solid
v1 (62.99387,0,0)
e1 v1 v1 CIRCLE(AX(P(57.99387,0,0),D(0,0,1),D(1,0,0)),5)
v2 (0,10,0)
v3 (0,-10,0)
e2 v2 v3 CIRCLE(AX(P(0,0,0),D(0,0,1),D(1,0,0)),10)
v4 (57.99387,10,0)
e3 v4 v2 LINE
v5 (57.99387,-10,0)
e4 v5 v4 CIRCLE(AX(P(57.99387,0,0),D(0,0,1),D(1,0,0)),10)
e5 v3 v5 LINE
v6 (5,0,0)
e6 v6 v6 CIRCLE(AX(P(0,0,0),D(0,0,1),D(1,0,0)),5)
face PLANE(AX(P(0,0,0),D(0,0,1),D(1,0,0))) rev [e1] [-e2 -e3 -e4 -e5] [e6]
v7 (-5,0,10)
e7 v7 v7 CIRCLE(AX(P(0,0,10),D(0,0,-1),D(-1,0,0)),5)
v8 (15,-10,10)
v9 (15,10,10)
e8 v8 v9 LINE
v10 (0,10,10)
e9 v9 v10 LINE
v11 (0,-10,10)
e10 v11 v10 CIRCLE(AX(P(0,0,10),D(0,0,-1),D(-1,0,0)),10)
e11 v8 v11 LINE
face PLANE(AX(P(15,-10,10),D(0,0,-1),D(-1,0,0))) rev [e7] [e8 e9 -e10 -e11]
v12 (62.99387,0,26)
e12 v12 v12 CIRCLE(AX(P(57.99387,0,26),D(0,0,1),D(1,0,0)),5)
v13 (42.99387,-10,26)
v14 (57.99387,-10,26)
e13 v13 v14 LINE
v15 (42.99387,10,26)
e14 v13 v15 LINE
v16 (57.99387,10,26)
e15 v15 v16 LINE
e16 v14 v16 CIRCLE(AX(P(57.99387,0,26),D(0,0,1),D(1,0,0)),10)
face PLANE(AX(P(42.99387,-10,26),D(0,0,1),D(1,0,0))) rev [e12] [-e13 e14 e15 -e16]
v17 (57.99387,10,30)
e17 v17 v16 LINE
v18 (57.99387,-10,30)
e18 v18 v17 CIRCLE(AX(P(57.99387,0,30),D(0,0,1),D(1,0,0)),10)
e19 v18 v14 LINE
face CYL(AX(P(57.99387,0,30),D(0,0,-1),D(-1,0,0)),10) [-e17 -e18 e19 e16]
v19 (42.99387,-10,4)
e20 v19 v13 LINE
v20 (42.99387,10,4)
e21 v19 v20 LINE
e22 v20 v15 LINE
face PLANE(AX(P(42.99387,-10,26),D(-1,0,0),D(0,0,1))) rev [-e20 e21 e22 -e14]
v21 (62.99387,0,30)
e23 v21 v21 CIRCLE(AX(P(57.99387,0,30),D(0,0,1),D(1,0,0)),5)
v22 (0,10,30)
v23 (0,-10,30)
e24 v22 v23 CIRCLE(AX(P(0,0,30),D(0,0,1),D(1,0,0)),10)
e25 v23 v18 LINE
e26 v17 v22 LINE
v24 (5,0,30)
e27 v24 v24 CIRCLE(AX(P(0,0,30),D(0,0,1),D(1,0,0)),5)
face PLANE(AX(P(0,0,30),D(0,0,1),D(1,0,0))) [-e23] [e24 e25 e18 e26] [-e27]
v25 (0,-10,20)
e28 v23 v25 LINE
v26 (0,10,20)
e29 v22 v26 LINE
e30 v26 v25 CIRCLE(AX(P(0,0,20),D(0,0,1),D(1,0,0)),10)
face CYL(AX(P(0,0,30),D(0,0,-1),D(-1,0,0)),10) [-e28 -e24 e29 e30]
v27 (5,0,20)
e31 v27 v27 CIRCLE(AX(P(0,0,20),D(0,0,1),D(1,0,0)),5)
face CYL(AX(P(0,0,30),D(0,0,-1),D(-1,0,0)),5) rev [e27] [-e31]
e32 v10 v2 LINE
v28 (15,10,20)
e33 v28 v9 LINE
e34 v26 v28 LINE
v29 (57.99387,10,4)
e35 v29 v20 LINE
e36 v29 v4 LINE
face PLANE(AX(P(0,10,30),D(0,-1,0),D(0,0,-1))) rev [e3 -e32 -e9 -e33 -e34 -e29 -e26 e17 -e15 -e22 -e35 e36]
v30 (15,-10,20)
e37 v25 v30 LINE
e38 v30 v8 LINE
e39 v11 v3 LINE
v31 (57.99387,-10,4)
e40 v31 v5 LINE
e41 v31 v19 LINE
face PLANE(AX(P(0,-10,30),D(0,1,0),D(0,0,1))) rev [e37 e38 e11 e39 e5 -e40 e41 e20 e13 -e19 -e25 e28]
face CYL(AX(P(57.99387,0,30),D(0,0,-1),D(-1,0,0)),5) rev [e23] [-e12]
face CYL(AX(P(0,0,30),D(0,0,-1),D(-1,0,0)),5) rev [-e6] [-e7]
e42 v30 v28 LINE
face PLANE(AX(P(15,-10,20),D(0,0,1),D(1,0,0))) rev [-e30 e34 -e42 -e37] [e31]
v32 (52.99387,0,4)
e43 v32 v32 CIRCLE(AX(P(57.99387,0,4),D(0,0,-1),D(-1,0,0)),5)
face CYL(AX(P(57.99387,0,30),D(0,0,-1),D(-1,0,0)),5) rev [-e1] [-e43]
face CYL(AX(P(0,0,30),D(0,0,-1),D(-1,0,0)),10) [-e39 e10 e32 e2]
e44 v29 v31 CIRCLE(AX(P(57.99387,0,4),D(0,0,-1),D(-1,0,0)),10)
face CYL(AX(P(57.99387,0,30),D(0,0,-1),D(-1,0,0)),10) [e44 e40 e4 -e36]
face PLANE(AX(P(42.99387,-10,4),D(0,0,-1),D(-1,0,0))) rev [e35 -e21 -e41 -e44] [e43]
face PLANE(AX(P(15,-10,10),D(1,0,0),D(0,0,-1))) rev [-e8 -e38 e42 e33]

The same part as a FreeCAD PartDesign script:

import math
import FreeCAD as App
import Part
import Sketcher
from FreeCAD import Vector
Q = App.Units.Quantity


def add_polygon(sketch, points):
    """Adds a closed chain of lines whose ends are joined by coincident constraints."""
    first, n = sketch.GeometryCount, len(points)
    for a, b in zip(points, points[1:] + points[:1]):
        sketch.addGeometry(Part.LineSegment(App.Vector(*a, 0), App.Vector(*b, 0)), False)
    for i in range(n):
        sketch.addConstraint(Sketcher.Constraint("Coincident", first + i, 2, first + (i + 1) % n, 1))

doc = App.newDocument("Part")
params = doc.addObject("Spreadsheet::Sheet", "Params")
for row, (alias, value) in enumerate([
    ("sketch1_diameter", "10 mm"),
    ("sketch1_radius", "10 mm"),
    ("pad1_length", "30 mm"),
    ("sketch2_width", "25 mm"),
    ("sketch2_height", "10 mm"),
    ("sketch2_height2", "22 mm"),
], start=1):
    params.set(f"A{row}", alias)
    params.set(f"B{row}", "=" + value)
    params.setAlias(f"B{row}", alias)

body = doc.addObject("PartDesign::Body", "Body")

# Sketch on XY plane
sketch1 = body.newObject("Sketcher::SketchObject", "Sketch")
sketch1.AttachmentSupport = (doc.getObject("XY_Plane"), [""])
sketch1.MapMode = "FlatFace"
sketch1.addGeometry([
    Part.LineSegment(Vector(58, 10, 0), Vector(0, 10, 0)),  # 0
    Part.ArcOfCircle(Part.Circle(Vector(0, 0, 0), Vector(0, 0, 1), 10), math.radians(90), math.radians(270)),  # 1
    Part.LineSegment(Vector(0, -10, 0), Vector(58, -10, 0)),  # 2
    Part.ArcOfCircle(Part.Circle(Vector(58, 0, 0), Vector(0, 0, 1), 10), math.radians(-90), math.radians(90)),  # 3
    Part.Circle(Vector(58, 0, 0), Vector(0, 0, 1), 5),  # 4
    Part.Circle(Vector(0, 0, 0), Vector(0, 0, 1), 5),  # 5
], False)
sketch1.addConstraint([
    Sketcher.Constraint("Tangent", 0, 2, 1, 1),
    Sketcher.Constraint("Tangent", 1, 2, 2, 1),
    Sketcher.Constraint("Tangent", 2, 2, 3, 1),
    Sketcher.Constraint("Tangent", 3, 2, 0, 1),
    Sketcher.Constraint("Horizontal", 0),
    Sketcher.Constraint("Horizontal", 2),
    Sketcher.Constraint("Coincident", 1, 3, -1, 1),
    Sketcher.Constraint("Coincident", 5, 3, -1, 1),
    Sketcher.Constraint("Coincident", 4, 3, 3, 3),
    Sketcher.Constraint("Equal", 4, 5),
    Sketcher.Constraint("Diameter", 4, Q("10 mm")),
    Sketcher.Constraint("Radius", 1, Q("10 mm")),
    Sketcher.Constraint("DistanceX", 0, 2, 0, 1, Q("57.99387 mm")),
])
sketch1.setExpression("Constraints[10]", "Params.sketch1_diameter")
sketch1.setExpression("Constraints[11]", "Params.sketch1_radius")
pad1 = body.newObject("PartDesign::Pad", "Pad")
pad1.Profile = sketch1
pad1.setExpression("Length", "Params.pad1_length")

# Sketch on XZ plane
sketch2 = body.newObject("Sketcher::SketchObject", "Sketch001")
sketch2.AttachmentSupport = (doc.getObject("XZ_Plane"), [""])
sketch2.MapMode = "FlatFace"
sketch2.AttachmentOffset = App.Placement(Vector(0, 0, -10), App.Rotation())
add_polygon(sketch2, [(-10, 10), (-10, 20), (15, 20), (15, 10)])  # lines 0-3
add_polygon(sketch2, [(43, 4), (43, 26), (68, 26), (68, 4)])  # lines 4-7
sketch2.addConstraint([
    Sketcher.Constraint("Vertical", 0),
    Sketcher.Constraint("Horizontal", 1),
    Sketcher.Constraint("Vertical", 2),
    Sketcher.Constraint("Horizontal", 3),
    Sketcher.Constraint("Vertical", 4),
    Sketcher.Constraint("Horizontal", 5),
    Sketcher.Constraint("Vertical", 6),
    Sketcher.Constraint("Horizontal", 7),
    Sketcher.Constraint("Equal", 3, 5),
    Sketcher.Constraint("DistanceX", 1, 1, 1, 2, Q("25 mm")),
    Sketcher.Constraint("DistanceY", 0, 1, 0, 2, Q("10 mm")),
    Sketcher.Constraint("DistanceY", 4, 1, 4, 2, Q("22 mm")),
    Sketcher.Constraint("DistanceX", 0, 2, -1, 1, Q("10 mm")),
    Sketcher.Constraint("DistanceY", -1, 1, 0, 2, Q("20 mm")),
    Sketcher.Constraint("DistanceY", -1, 1, 4, 2, Q("26 mm")),
    Sketcher.Constraint("DistanceX", -1, 1, 4, 2, Q("42.99387 mm")),
])
sketch2.setExpression("Constraints[17]", "Params.sketch2_width")
sketch2.setExpression("Constraints[18]", "Params.sketch2_height")
sketch2.setExpression("Constraints[19]", "Params.sketch2_height2")
pocket1 = body.newObject("PartDesign::Pocket", "Pocket")
pocket1.Profile = sketch2
pocket1.Type = "ThroughAll"
pocket1.Reversed = True

doc.recompute()
